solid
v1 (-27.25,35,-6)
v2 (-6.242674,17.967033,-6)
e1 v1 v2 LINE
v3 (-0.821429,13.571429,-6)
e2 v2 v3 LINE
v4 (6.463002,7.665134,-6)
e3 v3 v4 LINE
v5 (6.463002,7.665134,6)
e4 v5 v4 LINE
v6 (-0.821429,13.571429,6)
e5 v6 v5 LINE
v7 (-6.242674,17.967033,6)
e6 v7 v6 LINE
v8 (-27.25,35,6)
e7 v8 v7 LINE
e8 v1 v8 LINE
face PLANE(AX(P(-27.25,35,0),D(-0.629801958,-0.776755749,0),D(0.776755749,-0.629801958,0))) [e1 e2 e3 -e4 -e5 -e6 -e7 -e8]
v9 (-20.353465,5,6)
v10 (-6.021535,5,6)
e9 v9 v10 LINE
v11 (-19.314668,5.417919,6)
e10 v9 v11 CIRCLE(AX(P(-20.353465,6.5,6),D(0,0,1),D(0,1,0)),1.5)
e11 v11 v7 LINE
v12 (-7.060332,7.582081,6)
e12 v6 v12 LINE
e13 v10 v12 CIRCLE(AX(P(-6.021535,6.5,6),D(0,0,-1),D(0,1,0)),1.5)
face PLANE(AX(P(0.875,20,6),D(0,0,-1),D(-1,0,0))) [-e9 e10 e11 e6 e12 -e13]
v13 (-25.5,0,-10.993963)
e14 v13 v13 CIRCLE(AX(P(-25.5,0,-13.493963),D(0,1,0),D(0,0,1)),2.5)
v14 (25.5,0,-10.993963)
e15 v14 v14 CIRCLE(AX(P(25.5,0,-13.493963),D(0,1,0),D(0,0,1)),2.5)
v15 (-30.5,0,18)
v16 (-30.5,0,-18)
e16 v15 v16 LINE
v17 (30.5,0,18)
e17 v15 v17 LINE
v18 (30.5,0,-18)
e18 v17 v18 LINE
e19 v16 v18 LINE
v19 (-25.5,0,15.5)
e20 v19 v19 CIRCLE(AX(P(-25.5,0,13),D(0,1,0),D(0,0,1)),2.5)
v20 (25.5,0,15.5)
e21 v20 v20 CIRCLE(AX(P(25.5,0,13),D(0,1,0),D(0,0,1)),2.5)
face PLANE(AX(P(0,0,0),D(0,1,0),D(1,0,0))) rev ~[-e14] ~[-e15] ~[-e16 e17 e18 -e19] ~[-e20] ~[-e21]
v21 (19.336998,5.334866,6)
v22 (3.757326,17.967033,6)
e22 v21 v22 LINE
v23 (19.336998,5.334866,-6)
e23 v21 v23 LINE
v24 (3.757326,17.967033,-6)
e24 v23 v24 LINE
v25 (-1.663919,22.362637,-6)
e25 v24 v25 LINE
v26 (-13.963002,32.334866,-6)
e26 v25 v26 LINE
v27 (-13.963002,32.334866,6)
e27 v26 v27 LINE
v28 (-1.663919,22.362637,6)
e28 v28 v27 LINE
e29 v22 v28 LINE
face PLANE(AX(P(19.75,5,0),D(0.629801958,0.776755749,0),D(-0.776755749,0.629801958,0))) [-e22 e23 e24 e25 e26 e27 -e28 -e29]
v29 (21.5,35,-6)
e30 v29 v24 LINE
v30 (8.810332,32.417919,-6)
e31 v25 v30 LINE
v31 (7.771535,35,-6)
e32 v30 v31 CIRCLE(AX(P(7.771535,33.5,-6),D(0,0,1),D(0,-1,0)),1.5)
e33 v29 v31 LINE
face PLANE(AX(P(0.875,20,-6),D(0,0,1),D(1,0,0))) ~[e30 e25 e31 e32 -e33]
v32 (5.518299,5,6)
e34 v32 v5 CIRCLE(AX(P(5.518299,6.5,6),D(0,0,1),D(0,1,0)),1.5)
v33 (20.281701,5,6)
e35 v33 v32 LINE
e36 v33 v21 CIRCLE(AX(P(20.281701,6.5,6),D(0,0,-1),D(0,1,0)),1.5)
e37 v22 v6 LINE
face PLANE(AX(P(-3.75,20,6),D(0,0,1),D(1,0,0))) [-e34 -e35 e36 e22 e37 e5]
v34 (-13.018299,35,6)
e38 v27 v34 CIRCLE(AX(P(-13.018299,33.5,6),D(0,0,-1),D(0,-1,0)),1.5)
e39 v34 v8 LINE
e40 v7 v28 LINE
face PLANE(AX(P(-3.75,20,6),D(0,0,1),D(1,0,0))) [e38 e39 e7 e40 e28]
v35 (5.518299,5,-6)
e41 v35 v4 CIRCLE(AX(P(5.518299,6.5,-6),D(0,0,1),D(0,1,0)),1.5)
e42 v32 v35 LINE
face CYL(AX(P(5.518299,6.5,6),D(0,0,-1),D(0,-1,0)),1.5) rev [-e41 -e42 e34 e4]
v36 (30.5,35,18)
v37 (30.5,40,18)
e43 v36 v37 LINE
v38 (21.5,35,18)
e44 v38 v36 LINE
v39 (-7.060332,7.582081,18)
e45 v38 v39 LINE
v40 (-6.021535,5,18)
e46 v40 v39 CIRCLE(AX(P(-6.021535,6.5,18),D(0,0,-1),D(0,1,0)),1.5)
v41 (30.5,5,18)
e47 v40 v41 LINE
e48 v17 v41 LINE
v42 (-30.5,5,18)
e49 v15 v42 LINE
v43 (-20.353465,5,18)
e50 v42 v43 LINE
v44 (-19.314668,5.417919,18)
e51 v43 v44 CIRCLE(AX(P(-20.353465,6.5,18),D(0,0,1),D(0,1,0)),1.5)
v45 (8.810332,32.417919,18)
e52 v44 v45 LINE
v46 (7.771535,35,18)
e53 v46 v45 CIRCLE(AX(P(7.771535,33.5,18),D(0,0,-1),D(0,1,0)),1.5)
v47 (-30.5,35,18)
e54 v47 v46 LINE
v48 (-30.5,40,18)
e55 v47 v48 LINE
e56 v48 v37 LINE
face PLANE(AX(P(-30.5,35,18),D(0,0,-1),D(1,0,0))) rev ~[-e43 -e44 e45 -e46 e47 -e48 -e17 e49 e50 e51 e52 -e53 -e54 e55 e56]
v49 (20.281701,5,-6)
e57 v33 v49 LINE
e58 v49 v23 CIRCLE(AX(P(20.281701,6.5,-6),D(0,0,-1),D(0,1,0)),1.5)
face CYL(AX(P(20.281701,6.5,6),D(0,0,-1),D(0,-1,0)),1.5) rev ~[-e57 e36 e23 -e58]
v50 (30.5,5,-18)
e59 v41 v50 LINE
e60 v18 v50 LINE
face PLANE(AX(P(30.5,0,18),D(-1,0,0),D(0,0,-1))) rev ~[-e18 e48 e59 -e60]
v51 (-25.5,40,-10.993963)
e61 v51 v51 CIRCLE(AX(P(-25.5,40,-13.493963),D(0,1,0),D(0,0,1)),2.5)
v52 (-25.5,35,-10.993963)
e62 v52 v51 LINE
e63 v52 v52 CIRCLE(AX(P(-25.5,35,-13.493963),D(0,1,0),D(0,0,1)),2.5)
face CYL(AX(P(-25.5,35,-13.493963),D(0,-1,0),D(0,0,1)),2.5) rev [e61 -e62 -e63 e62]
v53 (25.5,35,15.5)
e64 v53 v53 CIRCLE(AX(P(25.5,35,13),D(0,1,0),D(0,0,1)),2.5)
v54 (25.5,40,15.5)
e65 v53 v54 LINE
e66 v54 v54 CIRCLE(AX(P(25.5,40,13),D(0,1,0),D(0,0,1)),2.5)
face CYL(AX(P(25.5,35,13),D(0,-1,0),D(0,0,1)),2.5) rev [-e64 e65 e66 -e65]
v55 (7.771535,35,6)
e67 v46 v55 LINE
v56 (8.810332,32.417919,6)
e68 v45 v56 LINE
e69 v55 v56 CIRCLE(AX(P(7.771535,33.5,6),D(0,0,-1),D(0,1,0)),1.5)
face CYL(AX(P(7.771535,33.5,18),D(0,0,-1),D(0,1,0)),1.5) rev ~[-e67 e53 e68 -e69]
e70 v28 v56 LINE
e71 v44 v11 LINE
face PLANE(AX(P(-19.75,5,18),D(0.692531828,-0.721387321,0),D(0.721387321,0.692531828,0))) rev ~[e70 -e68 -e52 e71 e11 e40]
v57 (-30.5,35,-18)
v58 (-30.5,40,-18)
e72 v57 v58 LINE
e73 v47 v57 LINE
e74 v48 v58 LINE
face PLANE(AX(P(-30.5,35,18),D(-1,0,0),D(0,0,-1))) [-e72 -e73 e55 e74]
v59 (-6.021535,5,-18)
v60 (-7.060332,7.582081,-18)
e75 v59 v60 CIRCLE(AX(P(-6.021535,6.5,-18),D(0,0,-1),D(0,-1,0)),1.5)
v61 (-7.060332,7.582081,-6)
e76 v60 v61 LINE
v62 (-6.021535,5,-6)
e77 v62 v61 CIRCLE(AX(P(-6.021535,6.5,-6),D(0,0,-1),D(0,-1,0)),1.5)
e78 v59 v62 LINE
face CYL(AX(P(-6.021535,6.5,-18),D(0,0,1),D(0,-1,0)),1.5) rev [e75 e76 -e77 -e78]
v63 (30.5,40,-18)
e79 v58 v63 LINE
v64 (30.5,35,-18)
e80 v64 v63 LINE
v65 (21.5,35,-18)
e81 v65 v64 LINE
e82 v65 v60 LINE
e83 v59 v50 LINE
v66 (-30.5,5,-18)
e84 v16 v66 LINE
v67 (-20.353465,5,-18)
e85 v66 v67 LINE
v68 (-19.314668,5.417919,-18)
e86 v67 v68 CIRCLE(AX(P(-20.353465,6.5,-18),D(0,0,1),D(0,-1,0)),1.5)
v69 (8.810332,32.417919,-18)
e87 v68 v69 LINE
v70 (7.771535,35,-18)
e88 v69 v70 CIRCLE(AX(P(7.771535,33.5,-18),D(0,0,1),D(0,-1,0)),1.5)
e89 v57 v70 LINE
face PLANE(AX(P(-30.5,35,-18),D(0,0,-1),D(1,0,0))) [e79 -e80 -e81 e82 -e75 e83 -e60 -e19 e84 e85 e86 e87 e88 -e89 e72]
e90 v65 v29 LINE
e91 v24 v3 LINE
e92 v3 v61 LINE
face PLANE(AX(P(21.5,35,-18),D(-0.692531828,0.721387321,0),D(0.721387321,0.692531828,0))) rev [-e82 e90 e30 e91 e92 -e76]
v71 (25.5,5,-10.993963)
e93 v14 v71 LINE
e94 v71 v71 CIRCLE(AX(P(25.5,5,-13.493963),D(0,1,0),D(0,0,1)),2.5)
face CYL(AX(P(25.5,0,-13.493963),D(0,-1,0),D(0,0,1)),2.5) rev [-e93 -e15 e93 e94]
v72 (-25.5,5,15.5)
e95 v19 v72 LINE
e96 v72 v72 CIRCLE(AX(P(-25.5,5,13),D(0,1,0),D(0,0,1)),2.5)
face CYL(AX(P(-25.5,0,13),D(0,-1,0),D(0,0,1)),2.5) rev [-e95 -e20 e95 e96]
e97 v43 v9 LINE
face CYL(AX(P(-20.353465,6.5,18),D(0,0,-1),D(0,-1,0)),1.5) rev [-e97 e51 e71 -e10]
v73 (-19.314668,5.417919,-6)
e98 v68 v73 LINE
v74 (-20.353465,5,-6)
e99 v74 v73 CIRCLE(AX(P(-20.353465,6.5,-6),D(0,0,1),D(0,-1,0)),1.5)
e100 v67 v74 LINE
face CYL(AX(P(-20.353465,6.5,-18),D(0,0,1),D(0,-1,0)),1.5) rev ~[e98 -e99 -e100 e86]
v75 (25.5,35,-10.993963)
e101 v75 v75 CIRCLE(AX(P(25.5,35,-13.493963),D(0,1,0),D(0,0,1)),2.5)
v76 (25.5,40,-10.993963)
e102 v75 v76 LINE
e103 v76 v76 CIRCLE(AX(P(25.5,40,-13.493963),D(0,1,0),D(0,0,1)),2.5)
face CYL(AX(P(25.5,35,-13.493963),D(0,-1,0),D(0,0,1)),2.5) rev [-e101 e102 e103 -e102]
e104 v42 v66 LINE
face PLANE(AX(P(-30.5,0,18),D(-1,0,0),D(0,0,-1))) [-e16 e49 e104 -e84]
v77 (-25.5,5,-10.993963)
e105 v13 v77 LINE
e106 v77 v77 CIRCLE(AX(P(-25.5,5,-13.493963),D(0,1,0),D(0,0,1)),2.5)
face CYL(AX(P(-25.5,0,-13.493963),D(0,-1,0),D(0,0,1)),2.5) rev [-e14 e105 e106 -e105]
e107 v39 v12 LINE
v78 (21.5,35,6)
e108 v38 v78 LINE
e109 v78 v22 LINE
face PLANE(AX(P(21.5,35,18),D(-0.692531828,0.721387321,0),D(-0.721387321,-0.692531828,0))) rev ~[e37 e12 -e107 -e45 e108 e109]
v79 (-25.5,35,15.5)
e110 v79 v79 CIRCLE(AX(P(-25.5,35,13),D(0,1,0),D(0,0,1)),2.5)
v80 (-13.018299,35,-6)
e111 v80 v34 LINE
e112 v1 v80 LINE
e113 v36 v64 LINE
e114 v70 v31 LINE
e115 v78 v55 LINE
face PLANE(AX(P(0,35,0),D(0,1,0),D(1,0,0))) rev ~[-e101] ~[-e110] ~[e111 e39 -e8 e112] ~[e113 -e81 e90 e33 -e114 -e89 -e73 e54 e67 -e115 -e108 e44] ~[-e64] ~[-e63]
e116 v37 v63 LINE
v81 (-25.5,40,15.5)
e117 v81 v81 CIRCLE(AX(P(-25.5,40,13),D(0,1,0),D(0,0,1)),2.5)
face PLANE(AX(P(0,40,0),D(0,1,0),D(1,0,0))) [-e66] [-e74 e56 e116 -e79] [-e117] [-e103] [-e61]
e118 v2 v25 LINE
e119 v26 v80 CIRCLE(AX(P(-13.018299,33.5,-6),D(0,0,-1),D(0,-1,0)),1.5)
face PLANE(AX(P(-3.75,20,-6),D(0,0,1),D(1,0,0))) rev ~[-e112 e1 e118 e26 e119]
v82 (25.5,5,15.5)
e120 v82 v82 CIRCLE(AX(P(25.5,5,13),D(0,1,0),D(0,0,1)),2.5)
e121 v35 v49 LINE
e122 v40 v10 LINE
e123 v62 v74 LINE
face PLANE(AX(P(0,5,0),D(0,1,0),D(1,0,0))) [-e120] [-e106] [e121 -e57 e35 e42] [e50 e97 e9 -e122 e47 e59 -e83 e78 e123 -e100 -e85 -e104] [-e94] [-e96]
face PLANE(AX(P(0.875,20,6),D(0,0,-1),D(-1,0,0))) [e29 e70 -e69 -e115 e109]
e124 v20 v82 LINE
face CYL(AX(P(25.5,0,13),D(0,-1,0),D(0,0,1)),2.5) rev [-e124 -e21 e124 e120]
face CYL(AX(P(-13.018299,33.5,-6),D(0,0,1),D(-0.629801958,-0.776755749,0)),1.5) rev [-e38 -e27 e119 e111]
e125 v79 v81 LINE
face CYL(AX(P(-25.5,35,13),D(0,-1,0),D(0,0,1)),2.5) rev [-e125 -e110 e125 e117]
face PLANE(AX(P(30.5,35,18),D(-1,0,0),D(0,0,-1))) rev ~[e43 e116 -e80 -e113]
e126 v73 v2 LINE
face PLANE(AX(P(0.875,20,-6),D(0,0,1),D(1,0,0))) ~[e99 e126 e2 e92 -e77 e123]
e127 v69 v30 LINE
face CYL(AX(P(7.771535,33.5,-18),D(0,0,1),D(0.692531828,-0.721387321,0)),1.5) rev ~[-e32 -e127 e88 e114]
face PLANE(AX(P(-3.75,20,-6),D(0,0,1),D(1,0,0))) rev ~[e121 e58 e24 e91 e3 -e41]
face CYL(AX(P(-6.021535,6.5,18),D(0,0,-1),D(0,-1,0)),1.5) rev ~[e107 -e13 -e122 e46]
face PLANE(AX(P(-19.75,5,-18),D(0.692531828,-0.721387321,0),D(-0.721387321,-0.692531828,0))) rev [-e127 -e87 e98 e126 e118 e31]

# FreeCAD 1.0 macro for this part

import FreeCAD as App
import Part
import Sketcher
Q = App.Units.Quantity


def edges_at(feature, points):
    """Names of the edges that pass closest to the given points."""
    edges = feature.Shape.Edges
    near = lambda p: min(range(len(edges)), key=lambda i: edges[i].distToShape(Part.Vertex(*p))[0])
    return sorted({f"Edge{near(p) + 1}" for p in points})

doc = App.newDocument("Part")
params = doc.addObject("Spreadsheet::Sheet", "Params")
for row, (alias, value) in enumerate([
    ("sketch1_diameter", "5 mm"),
    ("sketch1_width", "61 mm"),
    ("sketch1_height", "36 mm"),
    ("pad1_length", "5 mm"),
    ("sketch2_width", "10 mm"),
    ("pad2_length", "12 mm"),
    ("sketch3_width", "10 mm"),
    ("pad3_length", "12 mm"),
    ("fillet_radius", "1.5 mm"),
    ("fillet2_radius", "1.5 mm"),
    ("fillet3_radius", "1.5 mm"),
    ("fillet4_radius", "1.5 mm"),
    ("sketch4_diameter", "5 mm"),
    ("sketch4_width", "61 mm"),
    ("sketch4_height", "36 mm"),
    ("pad4_length", "5 mm"),
    ("fillet5_radius", "1.5 mm"),
    ("fillet6_radius", "1.5 mm"),
    ("fillet7_radius", "1.5 mm"),
], start=1):
    params.set(f"A{row}", alias)
    params.set(f"B{row}", "=" + value)
    params.setAlias(f"B{row}", alias)

body = doc.addObject("PartDesign::Body", "Body")

sketch1 = doc.addObject("Sketcher::SketchObject", "Sketch")
body.addObject(sketch1)
sketch1.AttachmentSupport = (doc.XZ_Plane, [""])
sketch1.MapMode = "FlatFace"
sketch1.addGeometry([
    Part.LineSegment(App.Vector(-30.5, -18, 0), App.Vector(-30.5, 18, 0)),
    Part.LineSegment(App.Vector(-30.5, 18, 0), App.Vector(30.5, 18, 0)),
    Part.LineSegment(App.Vector(30.5, 18, 0), App.Vector(30.5, -18, 0)),
    Part.LineSegment(App.Vector(30.5, -18, 0), App.Vector(-30.5, -18, 0)),
    Part.Circle(App.Vector(-25.5, 13, 0), App.Vector(0, 0, 1), 2.5),
    Part.Circle(App.Vector(25.5, 13, 0), App.Vector(0, 0, 1), 2.5),
    Part.Circle(App.Vector(-25.5, -13.5, 0), App.Vector(0, 0, 1), 2.5),
    Part.Circle(App.Vector(25.5, -13.5, 0), App.Vector(0, 0, 1), 2.5),
], False)
sketch1.addConstraint([
    Sketcher.Constraint("Coincident", 0, 2, 1, 1),
    Sketcher.Constraint("Coincident", 1, 2, 2, 1),
    Sketcher.Constraint("Coincident", 2, 2, 3, 1),
    Sketcher.Constraint("Coincident", 3, 2, 0, 1),
    Sketcher.Constraint("Vertical", 0),
    Sketcher.Constraint("Horizontal", 1),
    Sketcher.Constraint("Vertical", 2),
    Sketcher.Constraint("Horizontal", 3),
    Sketcher.Constraint("Equal", 4, 5),
    Sketcher.Constraint("Equal", 5, 6),
    Sketcher.Constraint("Equal", 6, 7),
    Sketcher.Constraint("Symmetric", 0, 2, 2, 2, -1, 1),
    Sketcher.Constraint("Symmetric", 4, 3, 5, 3, -2),
    Sketcher.Constraint("Symmetric", 6, 3, 7, 3, -2),
    Sketcher.Constraint("Vertical", 4, 3, 6, 3),
    Sketcher.Constraint("Diameter", 4, Q("5 mm")),
    Sketcher.Constraint("DistanceX", 1, 1, 1, 2, Q("61 mm")),
    Sketcher.Constraint("DistanceY", 0, 1, 0, 2, Q("36 mm")),
    Sketcher.Constraint("DistanceY", -1, 1, 4, 3, Q("13 mm")),
    Sketcher.Constraint("DistanceX", 4, 3, 5, 3, Q("51 mm")),
    Sketcher.Constraint("DistanceY", 6, 3, -1, 1, Q("13.493963 mm")),
])
sketch1.setExpression("Constraints[15]", "Params.sketch1_diameter")
sketch1.setExpression("Constraints[16]", "Params.sketch1_width")
sketch1.setExpression("Constraints[17]", "Params.sketch1_height")
pad1 = doc.addObject("PartDesign::Pad", "Pad")
body.addObject(pad1)
pad1.Profile = sketch1
pad1.setExpression("Length", "Params.pad1_length")
pad1.Reversed = True

sketch2 = doc.addObject("Sketcher::SketchObject", "Sketch001")
body.addObject(sketch2)
sketch2.AttachmentSupport = (doc.XY_Plane, [""])
sketch2.MapMode = "FlatFace"
sketch2.addGeometry([
    Part.LineSegment(App.Vector(20, 5, 0), App.Vector(-17, 35, 0)),
    Part.LineSegment(App.Vector(-17, 35, 0), App.Vector(-27, 35, 0)),
    Part.LineSegment(App.Vector(-27, 35, 0), App.Vector(10, 5, 0)),
    Part.LineSegment(App.Vector(10, 5, 0), App.Vector(20, 5, 0)),
], False)
sketch2.addConstraint([
    Sketcher.Constraint("Coincident", 0, 2, 1, 1),
    Sketcher.Constraint("Coincident", 1, 2, 2, 1),
    Sketcher.Constraint("Coincident", 2, 2, 3, 1),
    Sketcher.Constraint("Coincident", 3, 2, 0, 1),
    Sketcher.Constraint("Horizontal", 1),
    Sketcher.Constraint("Horizontal", 3),
    Sketcher.Constraint("Parallel", 0, 2),
    Sketcher.Constraint("DistanceX", 1, 2, 1, 1, Q("10 mm")),
    Sketcher.Constraint("DistanceY", -1, 1, 0, 2, Q("35 mm")),
    Sketcher.Constraint("DistanceY", -1, 1, 2, 2, Q("5 mm")),
    Sketcher.Constraint("DistanceX", 0, 2, 2, 2, Q("27 mm")),
    Sketcher.Constraint("DistanceX", 0, 2, -1, 1, Q("17.25 mm")),
])
sketch2.setExpression("Constraints[7]", "Params.sketch2_width")
pad2 = doc.addObject("PartDesign::Pad", "Pad001")
body.addObject(pad2)
pad2.Profile = sketch2
pad2.setExpression("Length", "Params.pad2_length")
pad2.Midplane = True

sketch3 = doc.addObject("Sketcher::SketchObject", "Sketch002")
body.addObject(sketch3)
sketch3.AttachmentSupport = (doc.XY_Plane, [""])
sketch3.MapMode = "FlatFace"
sketch3.AttachmentOffset = App.Placement(App.Vector(0, 0, 18), App.Rotation())
sketch3.addGeometry([
    Part.LineSegment(App.Vector(12, 35, 0), App.Vector(-20, 5, 0)),
    Part.LineSegment(App.Vector(-20, 5, 0), App.Vector(-10, 5, 0)),
    Part.LineSegment(App.Vector(-10, 5, 0), App.Vector(22, 35, 0)),
    Part.LineSegment(App.Vector(22, 35, 0), App.Vector(12, 35, 0)),
], False)
sketch3.addConstraint([
    Sketcher.Constraint("Coincident", 0, 2, 1, 1),
    Sketcher.Constraint("Coincident", 1, 2, 2, 1),
    Sketcher.Constraint("Coincident", 2, 2, 3, 1),
    Sketcher.Constraint("Coincident", 3, 2, 0, 1),
    Sketcher.Constraint("Horizontal", 1),
    Sketcher.Constraint("Horizontal", 3),
    Sketcher.Constraint("Parallel", 0, 2),
    Sketcher.Constraint("DistanceX", 1, 1, 1, 2, Q("10 mm")),
    Sketcher.Constraint("DistanceY", -1, 1, 0, 2, Q("5 mm")),
    Sketcher.Constraint("DistanceY", -1, 1, 2, 2, Q("35 mm")),
    Sketcher.Constraint("DistanceX", -1, 1, 2, 2, Q("21.5 mm")),
    Sketcher.Constraint("DistanceX", 0, 2, -1, 1, Q("19.75 mm")),
])
sketch3.setExpression("Constraints[7]", "Params.sketch3_width")
pad3 = doc.addObject("PartDesign::Pad", "Pad002")
body.addObject(pad3)
pad3.Profile = sketch3
pad3.setExpression("Length", "Params.pad3_length")
pad3.Reversed = True
doc.recompute()

mirrored = doc.addObject("PartDesign::Mirrored", "Mirrored")
body.addObject(mirrored)
mirrored.Originals = [pad3]
mirrored.MirrorPlane = (doc.XY_Plane, [""])
body.Tip = mirrored
doc.recompute()

fillet = doc.addObject("PartDesign::Fillet", "Fillet")
body.addObject(fillet)
fillet.Base = (mirrored, edges_at(mirrored, [(-9.75, 5, 12)]))
fillet.setExpression("Radius", "Params.fillet_radius")
doc.recompute()

fillet2 = doc.addObject("PartDesign::Fillet", "Fillet001")
body.addObject(fillet2)
fillet2.Base = (fillet, edges_at(fillet, [(-9.75, 5, -12)]))
fillet2.setExpression("Radius", "Params.fillet2_radius")
doc.recompute()

fillet3 = doc.addObject("PartDesign::Fillet", "Fillet002")
body.addObject(fillet3)
fillet3.Base = (fillet2, edges_at(fillet2, [(9.75, 5, 0)]))
fillet3.setExpression("Radius", "Params.fillet3_radius")
doc.recompute()

fillet4 = doc.addObject("PartDesign::Fillet", "Fillet003")
body.addObject(fillet4)
fillet4.Base = (fillet3, edges_at(fillet3, [(19.75, 5, 0), (-19.75, 5, 12), (-19.75, 5, -12)]))
fillet4.setExpression("Radius", "Params.fillet4_radius")

sketch4 = doc.addObject("Sketcher::SketchObject", "Sketch003")
body.addObject(sketch4)
sketch4.AttachmentSupport = (doc.XZ_Plane, [""])
sketch4.MapMode = "FlatFace"
sketch4.AttachmentOffset = App.Placement(App.Vector(0, 0, -35), App.Rotation())
sketch4.addGeometry([
    Part.LineSegment(App.Vector(-30.5, -18, 0), App.Vector(-30.5, 18, 0)),
    Part.LineSegment(App.Vector(-30.5, 18, 0), App.Vector(30.5, 18, 0)),
    Part.LineSegment(App.Vector(30.5, 18, 0), App.Vector(30.5, -18, 0)),
    Part.LineSegment(App.Vector(30.5, -18, 0), App.Vector(-30.5, -18, 0)),
    Part.Circle(App.Vector(-25.5, 13, 0), App.Vector(0, 0, 1), 2.5),
    Part.Circle(App.Vector(25.5, 13, 0), App.Vector(0, 0, 1), 2.5),
    Part.Circle(App.Vector(-25.5, -13.5, 0), App.Vector(0, 0, 1), 2.5),
    Part.Circle(App.Vector(25.5, -13.5, 0), App.Vector(0, 0, 1), 2.5),
], False)
sketch4.addConstraint([
    Sketcher.Constraint("Coincident", 0, 2, 1, 1),
    Sketcher.Constraint("Coincident", 1, 2, 2, 1),
    Sketcher.Constraint("Coincident", 2, 2, 3, 1),
    Sketcher.Constraint("Coincident", 3, 2, 0, 1),
    Sketcher.Constraint("Vertical", 0),
    Sketcher.Constraint("Horizontal", 1),
    Sketcher.Constraint("Vertical", 2),
    Sketcher.Constraint("Horizontal", 3),
    Sketcher.Constraint("Equal", 4, 5),
    Sketcher.Constraint("Equal", 5, 6),
    Sketcher.Constraint("Equal", 6, 7),
    Sketcher.Constraint("Symmetric", 0, 2, 2, 2, -1, 1),
    Sketcher.Constraint("Symmetric", 4, 3, 5, 3, -2),
    Sketcher.Constraint("Symmetric", 6, 3, 7, 3, -2),
    Sketcher.Constraint("Vertical", 4, 3, 6, 3),
    Sketcher.Constraint("Diameter", 4, Q("5 mm")),
    Sketcher.Constraint("DistanceX", 1, 1, 1, 2, Q("61 mm")),
    Sketcher.Constraint("DistanceY", 0, 1, 0, 2, Q("36 mm")),
    Sketcher.Constraint("DistanceY", -1, 1, 4, 3, Q("13 mm")),
    Sketcher.Constraint("DistanceX", 4, 3, 5, 3, Q("51 mm")),
    Sketcher.Constraint("DistanceY", 6, 3, -1, 1, Q("13.493963 mm")),
])
sketch4.setExpression("Constraints[15]", "Params.sketch4_diameter")
sketch4.setExpression("Constraints[16]", "Params.sketch4_width")
sketch4.setExpression("Constraints[17]", "Params.sketch4_height")
pad4 = doc.addObject("PartDesign::Pad", "Pad003")
body.addObject(pad4)
pad4.Profile = sketch4
pad4.setExpression("Length", "Params.pad4_length")
pad4.Reversed = True
doc.recompute()

fillet5 = doc.addObject("PartDesign::Fillet", "Fillet004")
body.addObject(fillet5)
fillet5.Base = (pad4, edges_at(pad4, [(11.5, 35, 12)]))
fillet5.setExpression("Radius", "Params.fillet5_radius")
doc.recompute()

fillet6 = doc.addObject("PartDesign::Fillet", "Fillet005")
body.addObject(fillet6)
fillet6.Base = (fillet5, edges_at(fillet5, [(11.5, 35, -12)]))
fillet6.setExpression("Radius", "Params.fillet6_radius")
doc.recompute()

fillet7 = doc.addObject("PartDesign::Fillet", "Fillet006")
body.addObject(fillet7)
fillet7.Base = (fillet6, edges_at(fillet6, [(-17.25, 35, 0)]))
fillet7.setExpression("Radius", "Params.fillet7_radius")

doc.recompute()
